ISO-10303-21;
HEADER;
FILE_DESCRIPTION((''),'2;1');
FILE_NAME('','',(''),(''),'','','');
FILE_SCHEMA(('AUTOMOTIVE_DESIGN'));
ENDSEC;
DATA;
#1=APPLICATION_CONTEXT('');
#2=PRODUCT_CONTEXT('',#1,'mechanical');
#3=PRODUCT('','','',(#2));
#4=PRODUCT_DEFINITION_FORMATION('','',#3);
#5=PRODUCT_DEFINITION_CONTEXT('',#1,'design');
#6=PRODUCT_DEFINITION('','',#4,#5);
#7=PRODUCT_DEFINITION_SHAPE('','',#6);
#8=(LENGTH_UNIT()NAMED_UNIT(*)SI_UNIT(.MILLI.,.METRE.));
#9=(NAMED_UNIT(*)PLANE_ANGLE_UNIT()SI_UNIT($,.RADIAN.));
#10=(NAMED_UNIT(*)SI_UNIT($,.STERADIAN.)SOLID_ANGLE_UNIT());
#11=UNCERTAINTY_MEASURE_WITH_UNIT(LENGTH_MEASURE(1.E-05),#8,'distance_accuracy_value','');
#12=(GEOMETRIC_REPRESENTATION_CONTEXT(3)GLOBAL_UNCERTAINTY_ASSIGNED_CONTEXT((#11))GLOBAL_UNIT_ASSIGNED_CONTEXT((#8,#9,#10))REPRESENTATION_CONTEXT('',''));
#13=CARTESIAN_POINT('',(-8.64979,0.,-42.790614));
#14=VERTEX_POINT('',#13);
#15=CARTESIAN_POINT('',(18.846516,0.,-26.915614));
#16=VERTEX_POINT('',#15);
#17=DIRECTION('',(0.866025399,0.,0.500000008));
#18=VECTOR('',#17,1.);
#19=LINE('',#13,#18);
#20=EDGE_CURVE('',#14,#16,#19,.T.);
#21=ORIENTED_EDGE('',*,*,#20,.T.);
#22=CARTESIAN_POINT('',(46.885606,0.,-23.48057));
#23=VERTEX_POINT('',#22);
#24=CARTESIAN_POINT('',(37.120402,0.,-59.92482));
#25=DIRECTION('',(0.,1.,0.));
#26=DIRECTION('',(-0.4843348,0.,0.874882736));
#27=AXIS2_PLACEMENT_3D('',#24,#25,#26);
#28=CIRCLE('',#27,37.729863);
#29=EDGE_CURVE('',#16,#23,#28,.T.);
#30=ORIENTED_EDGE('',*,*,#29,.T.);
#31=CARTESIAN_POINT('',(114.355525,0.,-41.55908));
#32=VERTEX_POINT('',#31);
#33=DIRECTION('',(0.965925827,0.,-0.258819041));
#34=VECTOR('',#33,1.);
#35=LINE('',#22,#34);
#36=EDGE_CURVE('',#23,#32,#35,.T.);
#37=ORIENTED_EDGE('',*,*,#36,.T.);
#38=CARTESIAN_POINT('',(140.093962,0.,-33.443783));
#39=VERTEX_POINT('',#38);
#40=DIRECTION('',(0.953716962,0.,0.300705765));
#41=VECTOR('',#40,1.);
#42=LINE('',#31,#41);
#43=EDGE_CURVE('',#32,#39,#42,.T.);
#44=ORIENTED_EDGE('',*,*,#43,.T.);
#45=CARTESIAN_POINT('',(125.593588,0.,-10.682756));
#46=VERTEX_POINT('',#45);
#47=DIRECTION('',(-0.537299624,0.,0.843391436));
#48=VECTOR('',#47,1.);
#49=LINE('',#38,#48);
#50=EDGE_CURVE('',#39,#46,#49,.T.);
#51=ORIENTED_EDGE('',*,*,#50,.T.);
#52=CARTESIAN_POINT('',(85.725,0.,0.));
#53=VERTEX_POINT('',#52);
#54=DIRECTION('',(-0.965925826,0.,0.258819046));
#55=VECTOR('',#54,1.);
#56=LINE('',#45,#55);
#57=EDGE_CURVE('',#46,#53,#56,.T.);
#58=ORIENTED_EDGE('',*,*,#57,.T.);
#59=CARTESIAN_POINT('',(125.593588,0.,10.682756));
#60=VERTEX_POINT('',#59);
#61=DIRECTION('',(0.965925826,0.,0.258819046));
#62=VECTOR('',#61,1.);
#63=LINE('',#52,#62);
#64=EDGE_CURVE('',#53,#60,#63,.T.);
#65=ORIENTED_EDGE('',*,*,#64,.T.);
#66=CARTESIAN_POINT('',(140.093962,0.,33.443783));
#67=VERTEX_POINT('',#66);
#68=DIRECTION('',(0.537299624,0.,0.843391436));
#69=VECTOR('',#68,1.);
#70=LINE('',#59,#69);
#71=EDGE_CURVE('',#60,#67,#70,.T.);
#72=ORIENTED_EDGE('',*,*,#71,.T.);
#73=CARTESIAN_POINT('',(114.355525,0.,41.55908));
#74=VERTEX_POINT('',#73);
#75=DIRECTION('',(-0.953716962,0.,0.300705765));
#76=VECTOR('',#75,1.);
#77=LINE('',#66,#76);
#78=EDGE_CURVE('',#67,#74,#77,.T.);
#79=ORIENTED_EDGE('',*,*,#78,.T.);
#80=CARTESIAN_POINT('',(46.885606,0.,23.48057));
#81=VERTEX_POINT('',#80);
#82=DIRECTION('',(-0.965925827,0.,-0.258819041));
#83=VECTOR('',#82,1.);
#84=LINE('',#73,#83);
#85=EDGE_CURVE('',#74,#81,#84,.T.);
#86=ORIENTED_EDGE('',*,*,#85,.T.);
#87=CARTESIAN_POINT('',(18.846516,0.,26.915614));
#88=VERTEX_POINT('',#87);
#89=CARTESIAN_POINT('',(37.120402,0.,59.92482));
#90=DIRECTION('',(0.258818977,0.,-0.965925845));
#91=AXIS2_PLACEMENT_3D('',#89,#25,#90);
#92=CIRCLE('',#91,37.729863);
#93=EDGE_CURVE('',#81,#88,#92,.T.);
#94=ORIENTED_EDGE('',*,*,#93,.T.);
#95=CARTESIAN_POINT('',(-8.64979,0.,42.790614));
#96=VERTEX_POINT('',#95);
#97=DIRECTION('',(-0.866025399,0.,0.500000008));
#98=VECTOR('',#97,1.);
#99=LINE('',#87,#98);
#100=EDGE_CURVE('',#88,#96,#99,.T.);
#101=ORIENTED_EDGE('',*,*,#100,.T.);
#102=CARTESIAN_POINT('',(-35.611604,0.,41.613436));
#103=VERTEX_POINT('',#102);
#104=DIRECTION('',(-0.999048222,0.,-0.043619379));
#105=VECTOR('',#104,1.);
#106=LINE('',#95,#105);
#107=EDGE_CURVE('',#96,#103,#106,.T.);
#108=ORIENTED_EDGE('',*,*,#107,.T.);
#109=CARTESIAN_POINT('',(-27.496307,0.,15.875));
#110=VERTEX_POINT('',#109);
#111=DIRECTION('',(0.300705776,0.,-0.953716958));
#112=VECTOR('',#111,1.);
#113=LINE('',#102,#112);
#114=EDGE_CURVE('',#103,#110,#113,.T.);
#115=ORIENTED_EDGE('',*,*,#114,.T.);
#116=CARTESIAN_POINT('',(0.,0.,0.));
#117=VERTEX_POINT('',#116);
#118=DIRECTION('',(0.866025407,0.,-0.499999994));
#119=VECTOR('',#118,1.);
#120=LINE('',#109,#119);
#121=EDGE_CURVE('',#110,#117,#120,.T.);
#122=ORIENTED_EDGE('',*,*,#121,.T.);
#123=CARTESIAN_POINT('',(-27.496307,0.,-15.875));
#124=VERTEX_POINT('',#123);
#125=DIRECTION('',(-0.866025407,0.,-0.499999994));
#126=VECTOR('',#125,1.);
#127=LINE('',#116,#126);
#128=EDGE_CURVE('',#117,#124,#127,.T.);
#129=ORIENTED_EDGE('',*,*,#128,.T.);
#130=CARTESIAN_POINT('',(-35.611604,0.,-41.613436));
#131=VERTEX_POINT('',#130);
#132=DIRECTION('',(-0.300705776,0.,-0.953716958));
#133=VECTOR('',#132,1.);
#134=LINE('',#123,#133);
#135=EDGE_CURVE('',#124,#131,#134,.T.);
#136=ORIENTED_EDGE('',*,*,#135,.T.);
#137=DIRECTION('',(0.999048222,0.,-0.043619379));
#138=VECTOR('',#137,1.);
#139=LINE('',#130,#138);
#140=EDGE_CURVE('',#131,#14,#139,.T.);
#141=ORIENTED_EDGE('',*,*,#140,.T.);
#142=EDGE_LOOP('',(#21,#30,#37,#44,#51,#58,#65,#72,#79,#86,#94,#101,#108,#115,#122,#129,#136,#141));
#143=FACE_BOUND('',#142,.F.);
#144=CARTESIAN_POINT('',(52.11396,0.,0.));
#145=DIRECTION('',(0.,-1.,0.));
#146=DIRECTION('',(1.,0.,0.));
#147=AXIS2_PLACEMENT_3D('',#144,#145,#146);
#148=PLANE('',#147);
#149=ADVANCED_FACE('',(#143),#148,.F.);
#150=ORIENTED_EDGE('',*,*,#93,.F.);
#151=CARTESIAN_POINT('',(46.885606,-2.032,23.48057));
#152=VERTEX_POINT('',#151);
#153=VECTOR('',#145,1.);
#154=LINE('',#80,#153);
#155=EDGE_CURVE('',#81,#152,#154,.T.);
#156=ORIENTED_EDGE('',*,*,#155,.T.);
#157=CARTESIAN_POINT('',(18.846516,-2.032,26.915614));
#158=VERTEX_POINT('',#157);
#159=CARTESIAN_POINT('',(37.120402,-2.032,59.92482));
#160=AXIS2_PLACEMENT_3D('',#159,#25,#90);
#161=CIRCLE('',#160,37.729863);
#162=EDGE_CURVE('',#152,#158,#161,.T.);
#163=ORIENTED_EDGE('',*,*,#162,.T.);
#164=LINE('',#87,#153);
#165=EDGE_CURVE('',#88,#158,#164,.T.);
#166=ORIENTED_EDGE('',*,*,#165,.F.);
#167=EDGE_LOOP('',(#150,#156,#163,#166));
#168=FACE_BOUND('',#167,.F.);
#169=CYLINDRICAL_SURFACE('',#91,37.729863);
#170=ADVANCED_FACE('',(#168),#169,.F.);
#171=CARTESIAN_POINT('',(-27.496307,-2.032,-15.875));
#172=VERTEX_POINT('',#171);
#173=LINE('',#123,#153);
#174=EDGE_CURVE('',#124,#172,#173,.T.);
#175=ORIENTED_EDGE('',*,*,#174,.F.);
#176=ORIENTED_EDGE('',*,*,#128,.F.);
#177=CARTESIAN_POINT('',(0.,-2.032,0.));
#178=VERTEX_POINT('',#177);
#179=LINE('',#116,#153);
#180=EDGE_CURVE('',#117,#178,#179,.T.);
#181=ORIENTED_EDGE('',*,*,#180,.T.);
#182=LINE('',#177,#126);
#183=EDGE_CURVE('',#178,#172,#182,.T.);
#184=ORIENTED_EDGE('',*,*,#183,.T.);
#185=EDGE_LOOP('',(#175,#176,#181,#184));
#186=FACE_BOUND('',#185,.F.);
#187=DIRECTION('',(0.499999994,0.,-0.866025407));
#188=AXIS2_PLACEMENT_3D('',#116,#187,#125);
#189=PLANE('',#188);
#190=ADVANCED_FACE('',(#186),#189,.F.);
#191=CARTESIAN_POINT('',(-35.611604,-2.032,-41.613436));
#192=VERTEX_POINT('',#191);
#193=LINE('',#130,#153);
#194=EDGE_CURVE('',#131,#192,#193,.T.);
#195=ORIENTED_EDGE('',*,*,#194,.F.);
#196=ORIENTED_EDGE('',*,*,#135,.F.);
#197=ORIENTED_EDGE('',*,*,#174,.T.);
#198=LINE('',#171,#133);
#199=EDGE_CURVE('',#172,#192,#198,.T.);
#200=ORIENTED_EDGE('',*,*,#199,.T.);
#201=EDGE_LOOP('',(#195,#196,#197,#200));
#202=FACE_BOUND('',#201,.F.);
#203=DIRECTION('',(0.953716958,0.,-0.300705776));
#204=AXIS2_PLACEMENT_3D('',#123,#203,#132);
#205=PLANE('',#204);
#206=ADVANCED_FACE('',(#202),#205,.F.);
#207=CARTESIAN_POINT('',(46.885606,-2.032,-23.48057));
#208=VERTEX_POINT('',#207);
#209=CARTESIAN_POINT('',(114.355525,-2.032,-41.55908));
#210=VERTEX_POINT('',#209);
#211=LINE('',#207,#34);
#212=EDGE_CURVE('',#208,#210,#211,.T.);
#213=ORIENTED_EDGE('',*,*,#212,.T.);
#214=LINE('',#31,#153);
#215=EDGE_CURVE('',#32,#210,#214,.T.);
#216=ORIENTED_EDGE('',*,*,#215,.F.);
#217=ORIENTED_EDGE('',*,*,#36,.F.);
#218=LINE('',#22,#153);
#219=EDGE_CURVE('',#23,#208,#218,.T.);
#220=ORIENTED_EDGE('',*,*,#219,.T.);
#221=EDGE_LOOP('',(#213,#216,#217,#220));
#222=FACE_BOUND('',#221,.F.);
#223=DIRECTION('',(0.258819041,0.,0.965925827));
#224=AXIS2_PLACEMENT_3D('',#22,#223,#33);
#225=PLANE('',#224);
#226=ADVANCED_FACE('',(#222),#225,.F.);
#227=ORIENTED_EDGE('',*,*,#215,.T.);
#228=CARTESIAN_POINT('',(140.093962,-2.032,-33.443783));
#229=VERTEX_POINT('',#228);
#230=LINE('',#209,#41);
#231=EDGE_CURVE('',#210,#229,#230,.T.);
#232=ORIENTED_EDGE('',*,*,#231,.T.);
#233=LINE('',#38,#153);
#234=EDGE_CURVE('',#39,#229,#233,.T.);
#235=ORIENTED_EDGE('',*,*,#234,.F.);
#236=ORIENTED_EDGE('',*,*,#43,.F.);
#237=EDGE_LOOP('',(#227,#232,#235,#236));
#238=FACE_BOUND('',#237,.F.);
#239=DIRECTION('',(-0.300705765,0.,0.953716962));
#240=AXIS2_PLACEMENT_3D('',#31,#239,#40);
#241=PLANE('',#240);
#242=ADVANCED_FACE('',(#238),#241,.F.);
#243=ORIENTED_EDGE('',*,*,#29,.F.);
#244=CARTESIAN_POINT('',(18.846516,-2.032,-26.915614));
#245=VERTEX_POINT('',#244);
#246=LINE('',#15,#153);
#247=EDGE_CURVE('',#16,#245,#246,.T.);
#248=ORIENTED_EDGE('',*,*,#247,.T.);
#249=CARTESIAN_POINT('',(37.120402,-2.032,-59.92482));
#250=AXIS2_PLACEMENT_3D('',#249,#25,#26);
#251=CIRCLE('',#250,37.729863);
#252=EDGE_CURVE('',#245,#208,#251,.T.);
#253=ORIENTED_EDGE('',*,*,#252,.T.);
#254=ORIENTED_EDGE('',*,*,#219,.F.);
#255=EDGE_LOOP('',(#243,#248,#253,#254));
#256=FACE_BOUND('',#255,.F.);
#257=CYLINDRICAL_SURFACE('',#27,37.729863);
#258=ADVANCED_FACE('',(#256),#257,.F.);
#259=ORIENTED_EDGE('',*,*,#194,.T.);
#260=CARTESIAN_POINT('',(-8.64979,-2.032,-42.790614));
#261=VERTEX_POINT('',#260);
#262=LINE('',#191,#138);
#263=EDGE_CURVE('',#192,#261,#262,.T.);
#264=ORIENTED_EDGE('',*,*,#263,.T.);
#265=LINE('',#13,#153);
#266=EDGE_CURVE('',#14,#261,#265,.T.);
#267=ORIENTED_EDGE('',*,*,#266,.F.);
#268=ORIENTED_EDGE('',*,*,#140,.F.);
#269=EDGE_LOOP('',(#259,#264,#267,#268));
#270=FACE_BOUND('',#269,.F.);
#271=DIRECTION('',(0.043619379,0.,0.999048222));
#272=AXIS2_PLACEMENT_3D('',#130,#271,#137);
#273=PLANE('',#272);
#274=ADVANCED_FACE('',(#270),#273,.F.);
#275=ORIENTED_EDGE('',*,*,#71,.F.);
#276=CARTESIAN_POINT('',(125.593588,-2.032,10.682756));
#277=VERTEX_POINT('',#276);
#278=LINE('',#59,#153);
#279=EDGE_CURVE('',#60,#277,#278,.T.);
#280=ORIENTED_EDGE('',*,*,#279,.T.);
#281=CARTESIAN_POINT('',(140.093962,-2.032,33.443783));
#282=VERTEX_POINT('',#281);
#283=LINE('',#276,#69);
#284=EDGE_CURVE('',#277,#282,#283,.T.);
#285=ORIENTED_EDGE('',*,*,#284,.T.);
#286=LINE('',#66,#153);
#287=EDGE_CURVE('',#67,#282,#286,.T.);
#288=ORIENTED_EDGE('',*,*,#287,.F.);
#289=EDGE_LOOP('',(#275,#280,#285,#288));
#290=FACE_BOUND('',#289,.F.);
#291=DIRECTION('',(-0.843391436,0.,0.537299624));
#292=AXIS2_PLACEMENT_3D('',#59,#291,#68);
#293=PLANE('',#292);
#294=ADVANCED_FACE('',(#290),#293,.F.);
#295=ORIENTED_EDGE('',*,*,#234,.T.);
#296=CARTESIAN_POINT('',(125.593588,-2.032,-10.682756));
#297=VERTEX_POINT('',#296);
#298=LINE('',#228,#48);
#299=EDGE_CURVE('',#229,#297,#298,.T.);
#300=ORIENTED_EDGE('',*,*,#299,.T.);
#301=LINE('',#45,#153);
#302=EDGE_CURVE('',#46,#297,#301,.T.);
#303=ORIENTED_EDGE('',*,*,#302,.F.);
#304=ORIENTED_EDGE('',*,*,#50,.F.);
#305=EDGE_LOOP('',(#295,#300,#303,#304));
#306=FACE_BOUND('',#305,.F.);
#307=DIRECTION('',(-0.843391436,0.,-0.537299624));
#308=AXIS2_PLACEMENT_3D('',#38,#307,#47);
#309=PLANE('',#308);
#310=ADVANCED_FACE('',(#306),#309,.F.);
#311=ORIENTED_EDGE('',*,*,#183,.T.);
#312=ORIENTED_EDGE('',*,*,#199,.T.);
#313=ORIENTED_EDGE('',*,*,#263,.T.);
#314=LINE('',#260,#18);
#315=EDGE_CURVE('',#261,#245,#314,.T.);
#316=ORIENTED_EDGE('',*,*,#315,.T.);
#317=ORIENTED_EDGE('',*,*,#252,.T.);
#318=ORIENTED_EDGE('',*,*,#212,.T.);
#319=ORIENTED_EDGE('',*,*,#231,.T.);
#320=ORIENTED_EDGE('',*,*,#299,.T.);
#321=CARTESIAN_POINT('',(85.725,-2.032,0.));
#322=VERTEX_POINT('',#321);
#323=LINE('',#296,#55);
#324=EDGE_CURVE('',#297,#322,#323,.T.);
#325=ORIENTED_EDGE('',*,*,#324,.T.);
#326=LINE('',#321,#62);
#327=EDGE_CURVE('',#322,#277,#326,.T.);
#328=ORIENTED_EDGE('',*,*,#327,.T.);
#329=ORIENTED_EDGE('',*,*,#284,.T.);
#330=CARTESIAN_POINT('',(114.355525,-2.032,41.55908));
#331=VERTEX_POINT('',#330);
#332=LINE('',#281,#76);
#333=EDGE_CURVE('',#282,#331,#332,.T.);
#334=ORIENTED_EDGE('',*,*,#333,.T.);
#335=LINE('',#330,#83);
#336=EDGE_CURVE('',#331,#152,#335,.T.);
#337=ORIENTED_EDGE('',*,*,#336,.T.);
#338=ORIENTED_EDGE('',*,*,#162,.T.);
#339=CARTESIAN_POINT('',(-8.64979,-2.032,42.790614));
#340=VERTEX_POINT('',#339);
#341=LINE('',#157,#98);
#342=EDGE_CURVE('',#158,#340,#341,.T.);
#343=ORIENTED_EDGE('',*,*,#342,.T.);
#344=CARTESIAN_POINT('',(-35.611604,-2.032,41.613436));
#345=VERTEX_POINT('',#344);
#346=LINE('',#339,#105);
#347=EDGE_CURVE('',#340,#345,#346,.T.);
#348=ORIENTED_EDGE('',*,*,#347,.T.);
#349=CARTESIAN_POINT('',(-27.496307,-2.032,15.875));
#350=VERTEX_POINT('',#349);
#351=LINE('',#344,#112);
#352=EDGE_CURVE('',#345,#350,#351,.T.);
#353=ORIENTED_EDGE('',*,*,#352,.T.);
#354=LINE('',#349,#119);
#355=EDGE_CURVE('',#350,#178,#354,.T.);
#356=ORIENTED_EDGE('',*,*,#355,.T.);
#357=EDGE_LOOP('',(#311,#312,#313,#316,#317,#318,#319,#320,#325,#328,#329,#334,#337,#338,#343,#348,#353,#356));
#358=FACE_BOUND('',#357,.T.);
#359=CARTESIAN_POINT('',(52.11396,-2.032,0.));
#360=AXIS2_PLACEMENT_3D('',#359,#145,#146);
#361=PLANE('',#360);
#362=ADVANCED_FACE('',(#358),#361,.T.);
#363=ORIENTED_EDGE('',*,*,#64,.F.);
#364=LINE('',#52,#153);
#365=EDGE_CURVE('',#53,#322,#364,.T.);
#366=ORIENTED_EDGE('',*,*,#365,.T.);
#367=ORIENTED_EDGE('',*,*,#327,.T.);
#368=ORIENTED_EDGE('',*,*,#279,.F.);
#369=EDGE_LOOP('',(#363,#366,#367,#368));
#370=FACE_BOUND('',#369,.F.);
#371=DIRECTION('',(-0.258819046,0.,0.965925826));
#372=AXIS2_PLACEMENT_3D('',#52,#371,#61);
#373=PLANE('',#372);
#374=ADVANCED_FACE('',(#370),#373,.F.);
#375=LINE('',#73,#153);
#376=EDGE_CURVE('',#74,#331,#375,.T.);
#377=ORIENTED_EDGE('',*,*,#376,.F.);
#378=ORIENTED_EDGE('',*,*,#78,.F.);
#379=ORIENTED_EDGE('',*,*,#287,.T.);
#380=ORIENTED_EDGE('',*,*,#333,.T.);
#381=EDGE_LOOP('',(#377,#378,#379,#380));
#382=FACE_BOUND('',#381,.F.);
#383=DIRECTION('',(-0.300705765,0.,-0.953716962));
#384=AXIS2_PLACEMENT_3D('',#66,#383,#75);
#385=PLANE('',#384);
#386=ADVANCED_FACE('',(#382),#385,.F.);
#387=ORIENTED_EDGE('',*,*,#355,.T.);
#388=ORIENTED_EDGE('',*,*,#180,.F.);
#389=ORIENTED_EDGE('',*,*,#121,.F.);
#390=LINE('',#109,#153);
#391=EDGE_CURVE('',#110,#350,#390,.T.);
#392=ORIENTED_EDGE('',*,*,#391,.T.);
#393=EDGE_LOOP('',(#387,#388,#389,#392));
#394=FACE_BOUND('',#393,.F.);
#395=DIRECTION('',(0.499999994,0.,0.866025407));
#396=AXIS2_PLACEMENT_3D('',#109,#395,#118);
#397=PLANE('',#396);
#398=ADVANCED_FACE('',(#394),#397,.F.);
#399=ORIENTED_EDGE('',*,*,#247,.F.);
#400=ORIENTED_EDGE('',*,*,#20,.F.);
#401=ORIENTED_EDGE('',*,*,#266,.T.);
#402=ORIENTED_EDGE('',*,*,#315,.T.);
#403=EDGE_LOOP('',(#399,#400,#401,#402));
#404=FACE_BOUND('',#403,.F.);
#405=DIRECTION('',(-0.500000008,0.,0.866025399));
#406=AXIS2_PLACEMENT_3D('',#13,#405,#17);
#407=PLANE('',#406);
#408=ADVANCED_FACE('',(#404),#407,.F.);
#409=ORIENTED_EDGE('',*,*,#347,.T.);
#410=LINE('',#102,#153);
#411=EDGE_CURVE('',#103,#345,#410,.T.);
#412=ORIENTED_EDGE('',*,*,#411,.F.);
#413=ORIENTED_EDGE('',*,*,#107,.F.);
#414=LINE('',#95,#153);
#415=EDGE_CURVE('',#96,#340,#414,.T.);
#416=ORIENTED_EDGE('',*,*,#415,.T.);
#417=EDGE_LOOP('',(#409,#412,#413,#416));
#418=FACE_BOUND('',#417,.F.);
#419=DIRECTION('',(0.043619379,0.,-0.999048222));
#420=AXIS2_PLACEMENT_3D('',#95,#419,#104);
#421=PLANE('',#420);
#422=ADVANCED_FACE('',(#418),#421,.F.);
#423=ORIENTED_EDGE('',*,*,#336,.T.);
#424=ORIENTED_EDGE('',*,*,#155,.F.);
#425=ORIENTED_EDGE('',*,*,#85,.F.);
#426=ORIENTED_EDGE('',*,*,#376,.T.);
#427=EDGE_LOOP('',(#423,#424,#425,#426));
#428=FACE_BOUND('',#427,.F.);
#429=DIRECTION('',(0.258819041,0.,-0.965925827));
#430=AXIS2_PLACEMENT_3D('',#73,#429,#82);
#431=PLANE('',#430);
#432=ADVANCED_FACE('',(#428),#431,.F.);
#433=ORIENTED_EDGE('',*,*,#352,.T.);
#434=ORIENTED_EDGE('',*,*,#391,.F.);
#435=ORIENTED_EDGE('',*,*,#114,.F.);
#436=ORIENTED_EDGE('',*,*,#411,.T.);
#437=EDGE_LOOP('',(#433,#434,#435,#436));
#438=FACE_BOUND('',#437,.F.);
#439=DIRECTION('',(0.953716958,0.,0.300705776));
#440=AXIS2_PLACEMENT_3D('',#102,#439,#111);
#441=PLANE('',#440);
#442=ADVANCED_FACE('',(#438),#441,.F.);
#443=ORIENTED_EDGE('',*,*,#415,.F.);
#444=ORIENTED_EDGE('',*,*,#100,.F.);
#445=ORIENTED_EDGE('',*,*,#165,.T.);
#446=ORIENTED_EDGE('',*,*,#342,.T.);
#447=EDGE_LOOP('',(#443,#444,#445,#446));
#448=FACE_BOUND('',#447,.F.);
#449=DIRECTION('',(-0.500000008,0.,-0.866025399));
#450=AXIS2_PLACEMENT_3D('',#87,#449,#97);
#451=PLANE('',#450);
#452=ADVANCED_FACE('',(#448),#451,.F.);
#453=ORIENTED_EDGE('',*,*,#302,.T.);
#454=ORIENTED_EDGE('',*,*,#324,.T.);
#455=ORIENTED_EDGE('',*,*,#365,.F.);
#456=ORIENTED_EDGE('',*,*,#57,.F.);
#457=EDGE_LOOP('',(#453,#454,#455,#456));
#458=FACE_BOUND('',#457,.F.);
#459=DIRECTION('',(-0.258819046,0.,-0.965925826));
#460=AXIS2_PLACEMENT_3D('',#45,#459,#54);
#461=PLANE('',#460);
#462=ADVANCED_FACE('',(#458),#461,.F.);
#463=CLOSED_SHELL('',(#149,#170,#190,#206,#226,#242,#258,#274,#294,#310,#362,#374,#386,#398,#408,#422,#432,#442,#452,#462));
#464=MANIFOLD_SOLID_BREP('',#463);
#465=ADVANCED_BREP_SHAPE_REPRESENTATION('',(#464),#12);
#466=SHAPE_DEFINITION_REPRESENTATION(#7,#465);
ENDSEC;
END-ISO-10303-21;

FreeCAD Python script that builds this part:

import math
import FreeCAD as App
import Part
import Sketcher

V = App.Vector
Q = App.Units.Quantity

doc = App.newDocument("Part")
params = doc.addObject("Spreadsheet::Sheet", "Params")
for row, (alias, value) in enumerate([
    ("sketch1_length", "1.25 in"),
    ("sketch1_length2", "2.75 in"),
    ("sketch1_length3", "1.0625 in"),
    ("sketch1_length4", "1.625 in"),
    ("pad1_length", "0.08 in"),
], start=1):
    params.set(f"A{row}", alias)
    params.set(f"B{row}", "=" + value)
    params.setAlias(f"B{row}", alias)

body = doc.addObject("PartDesign::Body", "Body")

# Sketch on XZ plane
sketch1 = doc.addObject("Sketcher::SketchObject", "Sketch")
body.addObject(sketch1)
sketch1.AttachmentSupport = (doc.XZ_Plane, [""])
sketch1.MapMode = "FlatFace"
sketch1.addGeometry([
    Part.LineSegment(V(-27.496307, 15.875, 0), V(0, 0, 0)),  # 0
    Part.LineSegment(V(0, 0, 0), V(-27.496307, -15.875, 0)),  # 1
    Part.LineSegment(V(-27.496307, -15.875, 0), V(-35.611604, -41.613436, 0)),  # 2
    Part.LineSegment(V(-35.611604, -41.613436, 0), V(-8.64979, -42.790614, 0)),  # 3
    Part.LineSegment(V(-8.64979, -42.790614, 0), V(18.846516, -26.915614, 0)),  # 4
    Part.ArcOfCircle(Part.Circle(V(37.120402, -59.92482, 0), V(0, 0, 1), 37.729863), math.radians(75.000004), math.radians(118.9689)),  # 5
    Part.LineSegment(V(46.885606, -23.48057, 0), V(114.355525, -41.55908, 0)),  # 6
    Part.LineSegment(V(114.355525, -41.55908, 0), V(140.093962, -33.443783, 0)),  # 7
    Part.LineSegment(V(140.093962, -33.443783, 0), V(125.593588, -10.682756, 0)),  # 8
    Part.LineSegment(V(125.593588, -10.682756, 0), V(85.725, 0, 0)),  # 9
    Part.LineSegment(V(85.725, 0, 0), V(125.593588, 10.682756, 0)),  # 10
    Part.LineSegment(V(125.593588, 10.682756, 0), V(140.093962, 33.443783, 0)),  # 11
    Part.LineSegment(V(140.093962, 33.443783, 0), V(114.355525, 41.55908, 0)),  # 12
    Part.LineSegment(V(114.355525, 41.55908, 0), V(46.885606, 23.48057, 0)),  # 13
    Part.ArcOfCircle(Part.Circle(V(37.120402, 59.92482, 0), V(0, 0, 1), 37.729863), math.radians(-118.9689), math.radians(-75.000004)),  # 14
    Part.LineSegment(V(18.846516, 26.915614, 0), V(-8.64979, 42.790614, 0)),  # 15
    Part.LineSegment(V(-8.64979, 42.790614, 0), V(-35.611604, 41.613436, 0)),  # 16
    Part.LineSegment(V(-35.611604, 41.613436, 0), V(-27.496307, 15.875, 0)),  # 17
], False)
sketch1.addConstraint([
    Sketcher.Constraint("Coincident", 0, 2, 1, 1),
    Sketcher.Constraint("Coincident", 1, 2, 2, 1),
    Sketcher.Constraint("Coincident", 2, 2, 3, 1),
    Sketcher.Constraint("Coincident", 3, 2, 4, 1),
    Sketcher.Constraint("Coincident", 4, 2, 5, 2),
    Sketcher.Constraint("Tangent", 5, 1, 6, 1),
    Sketcher.Constraint("Coincident", 6, 2, 7, 1),
    Sketcher.Constraint("Coincident", 7, 2, 8, 1),
    Sketcher.Constraint("Coincident", 8, 2, 9, 1),
    Sketcher.Constraint("Coincident", 9, 2, 10, 1),
    Sketcher.Constraint("Coincident", 10, 2, 11, 1),
    Sketcher.Constraint("Coincident", 11, 2, 12, 1),
    Sketcher.Constraint("Coincident", 12, 2, 13, 1),
    Sketcher.Constraint("Tangent", 13, 2, 14, 2),
    Sketcher.Constraint("Coincident", 14, 1, 15, 1),
    Sketcher.Constraint("Coincident", 15, 2, 16, 1),
    Sketcher.Constraint("Coincident", 16, 2, 17, 1),
    Sketcher.Constraint("Coincident", 17, 2, 0, 1),
    Sketcher.Constraint("Coincident", 0, 2, -1, 1),
    Sketcher.Constraint("Equal", 5, 14),
    Sketcher.Constraint("Symmetric", 5, 3, 14, 3, -1),
    Sketcher.Constraint("Symmetric", 8, 2, 10, 2, -1),
    Sketcher.Constraint("Symmetric", 7, 2, 11, 2, -1),
    Sketcher.Constraint("Symmetric", 6, 2, 12, 2, -1),
    Sketcher.Constraint("Symmetric", 3, 2, 15, 2, -1),
    Sketcher.Constraint("Symmetric", 2, 2, 16, 2, -1),
    Sketcher.Constraint("Symmetric", 1, 2, 17, 2, -1),
    Sketcher.Constraint("PointOnObject", 9, 2, -1),
    Sketcher.Constraint("Parallel", 1, 4),
    Sketcher.Constraint("Parallel", 6, 9),
    Sketcher.Constraint("Perpendicular", 2, 12),
    Sketcher.Constraint("Parallel", 0, 15),
    Sketcher.Constraint("Equal", 2, 3),
    Sketcher.Constraint("Equal", 1, 4),
    Sketcher.Constraint("Equal", 3, 7),
    Sketcher.Constraint("Equal", 7, 8),
    Sketcher.Constraint("Angle", 0, Q("-30 deg")),
    Sketcher.Constraint("Angle", 6, Q("-15 deg")),
    Sketcher.Constraint("Angle", 2, Q("-107.499999 deg")),
    Sketcher.Constraint("Angle", 3, Q("-2.5 deg")),
    Sketcher.Constraint("Angle", 8, Q("122.500001 deg")),
    Sketcher.Constraint("Distance", 0, Q("1.25 in")),
    Sketcher.Constraint("Distance", 6, Q("2.75 in")),
    Sketcher.Constraint("Distance", 2, Q("1.0625 in")),
    Sketcher.Constraint("Distance", 9, Q("1.625 in")),
    Sketcher.Constraint("DistanceX", -1, 1, 9, 2, Q("3.375 in")),
])
sketch1.setExpression("Constraints[41]", "Params.sketch1_length")
sketch1.setExpression("Constraints[42]", "Params.sketch1_length2")
sketch1.setExpression("Constraints[43]", "Params.sketch1_length3")
sketch1.setExpression("Constraints[44]", "Params.sketch1_length4")
pad1 = doc.addObject("PartDesign::Pad", "Pad")
body.addObject(pad1)
pad1.Profile = sketch1
pad1.setExpression("Length", "Params.pad1_length")

doc.recompute()
